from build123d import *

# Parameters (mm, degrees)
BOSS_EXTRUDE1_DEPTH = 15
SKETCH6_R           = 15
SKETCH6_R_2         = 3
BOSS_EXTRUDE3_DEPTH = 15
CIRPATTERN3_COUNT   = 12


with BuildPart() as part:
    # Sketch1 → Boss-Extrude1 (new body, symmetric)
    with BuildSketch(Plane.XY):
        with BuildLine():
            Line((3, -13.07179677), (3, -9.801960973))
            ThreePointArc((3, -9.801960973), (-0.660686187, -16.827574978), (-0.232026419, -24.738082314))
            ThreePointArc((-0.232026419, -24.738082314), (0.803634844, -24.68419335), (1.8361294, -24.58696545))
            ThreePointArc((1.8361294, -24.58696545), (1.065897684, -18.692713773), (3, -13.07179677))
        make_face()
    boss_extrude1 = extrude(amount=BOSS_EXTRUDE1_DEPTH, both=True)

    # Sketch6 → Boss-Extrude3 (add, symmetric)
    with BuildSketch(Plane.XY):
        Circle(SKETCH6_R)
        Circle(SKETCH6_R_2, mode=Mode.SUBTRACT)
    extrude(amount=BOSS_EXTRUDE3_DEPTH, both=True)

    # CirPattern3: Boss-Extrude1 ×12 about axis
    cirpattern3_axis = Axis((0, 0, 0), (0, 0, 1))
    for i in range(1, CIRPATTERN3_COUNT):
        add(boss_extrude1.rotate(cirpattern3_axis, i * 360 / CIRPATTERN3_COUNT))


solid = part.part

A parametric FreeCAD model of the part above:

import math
import FreeCAD as App
import Part
import Sketcher
Q = App.Units.Quantity

doc = App.newDocument("Part")
body = doc.addObject("PartDesign::Body", "Body")

sketch1 = body.newObject("Sketcher::SketchObject", "Sketch")
sketch1.AttachmentSupport = (doc.getObject("XY_Plane"), [""])
sketch1.MapMode = "FlatFace"
sketch1.addGeometry(Part.LineSegment(App.Vector(3, -13.071797, 0), App.Vector(3, -9.801961, 0)), False)
sketch1.addGeometry(Part.ArcOfCircle(Part.Circle(App.Vector(14, -20, 0), App.Vector(0, 0, 1), 15), math.radians(137.166572), math.radians(198.413473)), False)
sketch1.addGeometry(Part.ArcOfCircle(Part.Circle(App.Vector(-1, 0, 0), App.Vector(0, 0, 1), 24.75), math.radians(-88.22187), math.radians(-83.41996)), False)
sketch1.addGeometry(Part.ArcOfCircle(Part.Circle(App.Vector(14, -20, 0), App.Vector(0, 0, 1), 13), math.radians(147.795772), math.radians(200.661335)), False)
sketch1.addConstraint(Sketcher.Constraint("Coincident", 0, 2, 1, 1))
sketch1.addConstraint(Sketcher.Constraint("Coincident", 1, 2, 2, 1))
sketch1.addConstraint(Sketcher.Constraint("Coincident", 2, 2, 3, 2))
sketch1.addConstraint(Sketcher.Constraint("Coincident", 3, 1, 0, 1))
sketch1.addConstraint(Sketcher.Constraint("Vertical", 0))
sketch1.addConstraint(Sketcher.Constraint("Coincident", 3, 3, 1, 3))
sketch1.addConstraint(Sketcher.Constraint("PointOnObject", 2, 3, -1))
sketch1.addConstraint(Sketcher.Constraint("Radius", 1, Q("15 mm")))
sketch1.addConstraint(Sketcher.Constraint("Radius", 3, Q("13 mm")))
sketch1.addConstraint(Sketcher.Constraint("Radius", 2, Q("24.75 mm")))
sketch1.addConstraint(Sketcher.Constraint("DistanceX", -1, 1, 1, 3, Q("14 mm")))
sketch1.addConstraint(Sketcher.Constraint("DistanceY", 1, 3, -1, 1, Q("20 mm")))
sketch1.addConstraint(Sketcher.Constraint("DistanceX", 2, 3, -1, 1, Q("1 mm")))
sketch1.addConstraint(Sketcher.Constraint("DistanceX", -1, 1, 0, 2, Q("3 mm")))
pad1 = body.newObject("PartDesign::Pad", "Pad")
pad1.Profile = sketch1
pad1.Length = 30
pad1.Midplane = True

sketch2 = body.newObject("Sketcher::SketchObject", "Sketch001")
sketch2.AttachmentSupport = (doc.getObject("XY_Plane"), [""])
sketch2.MapMode = "FlatFace"
sketch2.addGeometry(Part.Circle(App.Vector(0, 0, 0), App.Vector(0, 0, 1), 15), False)
sketch2.addGeometry(Part.Circle(App.Vector(0, 0, 0), App.Vector(0, 0, 1), 3), False)
sketch2.addConstraint(Sketcher.Constraint("Coincident", 0, 3, -1, 1))
sketch2.addConstraint(Sketcher.Constraint("Coincident", 1, 3, -1, 1))
sketch2.addConstraint(Sketcher.Constraint("Diameter", 0, Q("30 mm")))
sketch2.addConstraint(Sketcher.Constraint("Diameter", 1, Q("6 mm")))
pad2 = body.newObject("PartDesign::Pad", "Pad001")
pad2.Profile = sketch2
pad2.Length = 30
pad2.Midplane = True
doc.recompute()

polarpattern = body.newObject("PartDesign::PolarPattern", "PolarPattern")
polarpattern.Originals = [pad1]
polarpattern.Axis = (doc.getObject("Z_Axis"), [""])
polarpattern.Angle = 360
polarpattern.Occurrences = 12
body.Tip = polarpattern

doc.recompute()
